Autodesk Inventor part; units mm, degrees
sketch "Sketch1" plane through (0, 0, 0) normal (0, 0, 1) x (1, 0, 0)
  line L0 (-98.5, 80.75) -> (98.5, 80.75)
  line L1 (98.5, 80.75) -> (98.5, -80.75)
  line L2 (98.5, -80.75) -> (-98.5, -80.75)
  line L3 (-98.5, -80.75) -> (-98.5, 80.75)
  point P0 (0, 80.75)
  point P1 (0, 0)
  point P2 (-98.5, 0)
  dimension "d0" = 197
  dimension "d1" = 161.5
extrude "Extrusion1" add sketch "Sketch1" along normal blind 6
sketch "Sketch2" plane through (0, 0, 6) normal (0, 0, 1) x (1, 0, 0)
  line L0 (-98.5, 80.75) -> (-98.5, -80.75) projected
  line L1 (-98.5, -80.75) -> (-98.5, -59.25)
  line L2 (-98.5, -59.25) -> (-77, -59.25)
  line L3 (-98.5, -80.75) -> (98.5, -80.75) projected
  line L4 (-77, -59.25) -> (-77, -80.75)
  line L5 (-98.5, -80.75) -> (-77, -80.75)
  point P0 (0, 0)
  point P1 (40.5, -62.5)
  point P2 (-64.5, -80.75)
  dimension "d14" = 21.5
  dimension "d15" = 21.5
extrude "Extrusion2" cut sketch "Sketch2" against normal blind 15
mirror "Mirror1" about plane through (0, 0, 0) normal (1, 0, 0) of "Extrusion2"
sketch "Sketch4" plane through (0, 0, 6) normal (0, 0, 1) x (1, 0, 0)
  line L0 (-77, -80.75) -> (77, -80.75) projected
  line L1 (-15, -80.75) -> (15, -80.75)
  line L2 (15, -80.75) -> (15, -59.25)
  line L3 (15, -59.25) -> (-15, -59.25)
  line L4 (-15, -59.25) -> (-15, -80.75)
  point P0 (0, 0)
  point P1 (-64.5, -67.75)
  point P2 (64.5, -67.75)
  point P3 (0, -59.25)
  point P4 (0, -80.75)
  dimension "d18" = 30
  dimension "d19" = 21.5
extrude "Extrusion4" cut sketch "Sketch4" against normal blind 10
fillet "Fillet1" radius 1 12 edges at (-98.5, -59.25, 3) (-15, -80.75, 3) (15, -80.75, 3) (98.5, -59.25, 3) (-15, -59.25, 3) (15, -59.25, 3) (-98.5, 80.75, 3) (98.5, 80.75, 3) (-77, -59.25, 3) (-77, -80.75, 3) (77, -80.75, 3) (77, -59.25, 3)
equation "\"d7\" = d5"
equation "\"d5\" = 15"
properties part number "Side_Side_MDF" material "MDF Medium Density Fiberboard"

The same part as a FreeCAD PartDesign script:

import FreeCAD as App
import Part
import Sketcher

V = App.Vector
Q = App.Units.Quantity


def edges_at(feature, points):
    """Names of the edges that pass closest to the given points."""
    edges = feature.Shape.Edges
    near = lambda p: min(range(len(edges)), key=lambda i: edges[i].distToShape(Part.Vertex(*p))[0])
    return sorted({f"Edge{near(p) + 1}" for p in points})


def add_polygon(sketch, points):
    """Adds a closed chain of lines whose ends are joined by coincident constraints."""
    first, n = sketch.GeometryCount, len(points)
    for a, b in zip(points, points[1:] + points[:1]):
        sketch.addGeometry(Part.LineSegment(App.Vector(*a, 0), App.Vector(*b, 0)), False)
    for i in range(n):
        sketch.addConstraint(Sketcher.Constraint("Coincident", first + i, 2, first + (i + 1) % n, 1))

doc = App.newDocument("Part")
params = doc.addObject("Spreadsheet::Sheet", "Params")
for row, (alias, value) in enumerate([
    ("sketch1_width", "197 mm"),
    ("sketch1_height", "161.5 mm"),
    ("pad1_length", "6 mm"),
    ("sketch2_width", "21.5 mm"),
    ("pocket1_length", "15 mm"),
    ("sketch3_width", "30 mm"),
    ("sketch3_height", "21.5 mm"),
    ("pocket2_length", "10 mm"),
    ("fillet_radius", "1 mm"),
], start=1):
    params.set(f"A{row}", alias)
    params.set(f"B{row}", "=" + value)
    params.setAlias(f"B{row}", alias)

body = doc.addObject("PartDesign::Body", "Body")

# Sketch on XY plane
sketch1 = doc.addObject("Sketcher::SketchObject", "Sketch")
body.addObject(sketch1)
sketch1.AttachmentSupport = (doc.XY_Plane, [""])
sketch1.MapMode = "FlatFace"
add_polygon(sketch1, [(98, 81), (-98, 81), (-98, -81), (98, -81)])  # lines 0-3
sketch1.addConstraint([
    Sketcher.Constraint("Horizontal", 0),
    Sketcher.Constraint("Vertical", 1),
    Sketcher.Constraint("Horizontal", 2),
    Sketcher.Constraint("Vertical", 3),
    Sketcher.Constraint("Symmetric", 0, 2, 2, 2, -1, 1),
    Sketcher.Constraint("DistanceX", 0, 2, 0, 1, Q("197 mm")),
    Sketcher.Constraint("DistanceY", 1, 2, 1, 1, Q("161.5 mm")),
])
sketch1.setExpression("Constraints[9]", "Params.sketch1_width")
sketch1.setExpression("Constraints[10]", "Params.sketch1_height")
pad1 = doc.addObject("PartDesign::Pad", "Pad")
body.addObject(pad1)
pad1.Profile = sketch1
pad1.setExpression("Length", "Params.pad1_length")

# Sketch on XY plane
sketch2 = doc.addObject("Sketcher::SketchObject", "Sketch001")
body.addObject(sketch2)
sketch2.AttachmentSupport = (doc.XY_Plane, [""])
sketch2.MapMode = "FlatFace"
sketch2.AttachmentOffset = App.Placement(V(0, 0, 6), App.Rotation())
add_polygon(sketch2, [(-77, -59), (-98, -59), (-98, -81), (-77, -81)])  # lines 0-3
sketch2.addConstraint([
    Sketcher.Constraint("Horizontal", 0),
    Sketcher.Constraint("Vertical", 1),
    Sketcher.Constraint("Horizontal", 2),
    Sketcher.Constraint("Vertical", 3),
    Sketcher.Constraint("Equal", 2, 1),
    Sketcher.Constraint("DistanceX", 0, 2, 0, 1, Q("21.5 mm")),
    Sketcher.Constraint("DistanceX", 2, 2, -1, 1, Q("77 mm")),
    Sketcher.Constraint("DistanceY", 0, 2, -1, 1, Q("59.25 mm")),
])
sketch2.setExpression("Constraints[9]", "Params.sketch2_width")
pocket1 = doc.addObject("PartDesign::Pocket", "Pocket")
body.addObject(pocket1)
pocket1.Profile = sketch2
pocket1.setExpression("Length", "Params.pocket1_length")
doc.recompute()

mirrored = doc.addObject("PartDesign::Mirrored", "Mirrored")
body.addObject(mirrored)
mirrored.Originals = [pocket1]
mirrored.MirrorPlane = (doc.YZ_Plane, [""])
body.Tip = mirrored

# Sketch on XY plane
sketch3 = doc.addObject("Sketcher::SketchObject", "Sketch002")
body.addObject(sketch3)
sketch3.AttachmentSupport = (doc.XY_Plane, [""])
sketch3.MapMode = "FlatFace"
sketch3.AttachmentOffset = App.Placement(V(0, 0, 6), App.Rotation())
add_polygon(sketch3, [(-15, -59), (-15, -81), (15, -81), (15, -59)])  # lines 0-3
sketch3.addConstraint([
    Sketcher.Constraint("Vertical", 0),
    Sketcher.Constraint("Horizontal", 1),
    Sketcher.Constraint("Vertical", 2),
    Sketcher.Constraint("Horizontal", 3),
    Sketcher.Constraint("DistanceX", 1, 1, 1, 2, Q("30 mm")),
    Sketcher.Constraint("DistanceY", 0, 2, 0, 1, Q("21.5 mm")),
    Sketcher.Constraint("DistanceX", 0, 2, -1, 1, Q("15 mm")),
    Sketcher.Constraint("DistanceY", 0, 2, -1, 1, Q("80.75 mm")),
])
sketch3.setExpression("Constraints[8]", "Params.sketch3_width")
sketch3.setExpression("Constraints[9]", "Params.sketch3_height")
pocket2 = doc.addObject("PartDesign::Pocket", "Pocket001")
body.addObject(pocket2)
pocket2.Profile = sketch3
pocket2.setExpression("Length", "Params.pocket2_length")
doc.recompute()

fillet = doc.addObject("PartDesign::Fillet", "Fillet")
body.addObject(fillet)
fillet.Base = (pocket2, edges_at(pocket2, [
    (-98.5, -59.25, 3),
    (-15, -80.75, 3),
    (15, -80.75, 3),
    (98.5, -59.25, 3),
    (-15, -59.25, 3),
    (15, -59.25, 3),
    (-98.5, 80.75, 3),
    (98.5, 80.75, 3),
    (-77, -59.25, 3),
    (-77, -80.75, 3),
    (77, -80.75, 3),
    (77, -59.25, 3),
]))
fillet.setExpression("Radius", "Params.fillet_radius")

doc.recompute()
